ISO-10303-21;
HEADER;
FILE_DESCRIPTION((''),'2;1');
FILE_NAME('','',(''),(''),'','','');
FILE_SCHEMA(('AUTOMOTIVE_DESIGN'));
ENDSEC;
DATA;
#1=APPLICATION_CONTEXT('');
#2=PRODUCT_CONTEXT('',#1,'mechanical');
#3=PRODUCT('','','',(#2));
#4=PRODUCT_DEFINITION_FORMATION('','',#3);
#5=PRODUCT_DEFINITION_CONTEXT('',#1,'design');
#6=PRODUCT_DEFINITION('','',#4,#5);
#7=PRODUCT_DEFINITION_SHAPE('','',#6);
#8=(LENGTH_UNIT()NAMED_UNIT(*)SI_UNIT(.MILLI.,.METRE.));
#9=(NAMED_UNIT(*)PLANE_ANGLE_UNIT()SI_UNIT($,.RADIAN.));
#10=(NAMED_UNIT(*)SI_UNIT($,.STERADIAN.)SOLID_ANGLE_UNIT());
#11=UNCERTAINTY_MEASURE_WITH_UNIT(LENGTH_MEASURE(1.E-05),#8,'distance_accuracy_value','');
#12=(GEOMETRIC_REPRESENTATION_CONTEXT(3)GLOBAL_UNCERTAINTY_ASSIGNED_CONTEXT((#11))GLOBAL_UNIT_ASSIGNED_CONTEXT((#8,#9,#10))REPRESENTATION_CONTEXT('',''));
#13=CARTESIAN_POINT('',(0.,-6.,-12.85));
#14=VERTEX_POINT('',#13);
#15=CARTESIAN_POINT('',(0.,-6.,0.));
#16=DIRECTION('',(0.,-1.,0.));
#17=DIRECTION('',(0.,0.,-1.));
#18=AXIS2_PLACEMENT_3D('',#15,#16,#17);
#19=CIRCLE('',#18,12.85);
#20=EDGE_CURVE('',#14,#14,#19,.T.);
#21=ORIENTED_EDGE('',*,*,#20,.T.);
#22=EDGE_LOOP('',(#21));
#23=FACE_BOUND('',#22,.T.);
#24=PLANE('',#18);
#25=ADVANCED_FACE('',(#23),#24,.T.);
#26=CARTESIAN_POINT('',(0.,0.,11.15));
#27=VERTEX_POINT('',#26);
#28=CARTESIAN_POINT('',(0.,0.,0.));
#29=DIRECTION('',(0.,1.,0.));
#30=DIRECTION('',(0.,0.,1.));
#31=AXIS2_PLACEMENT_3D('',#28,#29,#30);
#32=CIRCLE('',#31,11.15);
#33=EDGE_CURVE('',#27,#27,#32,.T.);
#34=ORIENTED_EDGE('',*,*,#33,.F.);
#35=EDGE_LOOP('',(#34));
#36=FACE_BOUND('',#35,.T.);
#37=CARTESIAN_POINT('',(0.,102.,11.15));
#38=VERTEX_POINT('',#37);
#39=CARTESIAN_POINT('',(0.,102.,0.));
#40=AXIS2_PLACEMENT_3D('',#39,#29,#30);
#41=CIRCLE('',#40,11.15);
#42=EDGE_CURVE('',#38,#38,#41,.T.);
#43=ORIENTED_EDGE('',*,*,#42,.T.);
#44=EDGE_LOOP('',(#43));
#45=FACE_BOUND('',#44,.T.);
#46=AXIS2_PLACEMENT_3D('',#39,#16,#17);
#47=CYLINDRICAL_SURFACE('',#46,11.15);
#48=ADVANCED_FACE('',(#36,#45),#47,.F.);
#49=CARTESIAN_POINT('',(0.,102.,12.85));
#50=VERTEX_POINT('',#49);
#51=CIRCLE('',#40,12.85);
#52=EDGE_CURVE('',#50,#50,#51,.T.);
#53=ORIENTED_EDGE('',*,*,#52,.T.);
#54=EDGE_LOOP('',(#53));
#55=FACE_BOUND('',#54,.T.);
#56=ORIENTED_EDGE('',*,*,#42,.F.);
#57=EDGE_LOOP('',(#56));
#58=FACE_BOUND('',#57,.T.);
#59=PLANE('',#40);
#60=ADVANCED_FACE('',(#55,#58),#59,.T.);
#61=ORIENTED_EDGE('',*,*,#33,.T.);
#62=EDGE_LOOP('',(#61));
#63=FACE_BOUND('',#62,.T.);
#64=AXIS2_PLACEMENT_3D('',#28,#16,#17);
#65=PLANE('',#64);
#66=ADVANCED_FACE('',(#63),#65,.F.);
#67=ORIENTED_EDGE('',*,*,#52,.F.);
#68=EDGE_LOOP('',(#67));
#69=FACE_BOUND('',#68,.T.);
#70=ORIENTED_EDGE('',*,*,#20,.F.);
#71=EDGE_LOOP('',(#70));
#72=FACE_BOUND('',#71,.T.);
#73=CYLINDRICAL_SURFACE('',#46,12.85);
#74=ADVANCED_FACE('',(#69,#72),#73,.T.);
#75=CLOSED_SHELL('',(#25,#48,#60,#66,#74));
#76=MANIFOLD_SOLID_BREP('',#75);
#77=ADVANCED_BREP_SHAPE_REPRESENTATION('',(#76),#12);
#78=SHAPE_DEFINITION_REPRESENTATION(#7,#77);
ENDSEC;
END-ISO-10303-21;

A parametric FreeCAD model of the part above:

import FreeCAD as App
import Part
import Sketcher
from FreeCAD import Vector

doc = App.newDocument("Part")
body = doc.addObject("PartDesign::Body", "Body")

# Sketch on XZ plane
sketch1 = body.newObject("Sketcher::SketchObject", "Sketch")
sketch1.AttachmentSupport = (doc.getObject("XZ_Plane"), [""])
sketch1.MapMode = "FlatFace"
sketch1.addGeometry(Part.Circle(Vector(0, 0, 0), Vector(0, 0, 1), 13), False)
sketch1.addGeometry(Part.Circle(Vector(0, 0, 0), Vector(0, 0, 1), 11), False)
sketch1.addConstraint(Sketcher.Constraint("Coincident", 0, 3, -1, 1))
sketch1.addConstraint(Sketcher.Constraint("Coincident", 1, 3, -1, 1))
sketch1.addConstraint(Sketcher.Constraint("Diameter", 0, 25.7))
sketch1.addConstraint(Sketcher.Constraint("Diameter", 1, 22.3))
pad1 = body.newObject("PartDesign::Pad", "Pad")
pad1.Profile = sketch1
pad1.Length = 102
pad1.Reversed = True

# Sketch on XZ plane
sketch2 = body.newObject("Sketcher::SketchObject", "Sketch001")
sketch2.AttachmentSupport = (doc.getObject("XZ_Plane"), [""])
sketch2.MapMode = "FlatFace"
sketch2.addGeometry(Part.Circle(Vector(0, 0, 0), Vector(0, 0, 1), 13), False)
sketch2.addConstraint(Sketcher.Constraint("Coincident", 0, 3, -1, 1))
sketch2.addConstraint(Sketcher.Constraint("Diameter", 0, 25.7))
pad2 = body.newObject("PartDesign::Pad", "Pad001")
pad2.Profile = sketch2
pad2.Length = 6

doc.recompute()
